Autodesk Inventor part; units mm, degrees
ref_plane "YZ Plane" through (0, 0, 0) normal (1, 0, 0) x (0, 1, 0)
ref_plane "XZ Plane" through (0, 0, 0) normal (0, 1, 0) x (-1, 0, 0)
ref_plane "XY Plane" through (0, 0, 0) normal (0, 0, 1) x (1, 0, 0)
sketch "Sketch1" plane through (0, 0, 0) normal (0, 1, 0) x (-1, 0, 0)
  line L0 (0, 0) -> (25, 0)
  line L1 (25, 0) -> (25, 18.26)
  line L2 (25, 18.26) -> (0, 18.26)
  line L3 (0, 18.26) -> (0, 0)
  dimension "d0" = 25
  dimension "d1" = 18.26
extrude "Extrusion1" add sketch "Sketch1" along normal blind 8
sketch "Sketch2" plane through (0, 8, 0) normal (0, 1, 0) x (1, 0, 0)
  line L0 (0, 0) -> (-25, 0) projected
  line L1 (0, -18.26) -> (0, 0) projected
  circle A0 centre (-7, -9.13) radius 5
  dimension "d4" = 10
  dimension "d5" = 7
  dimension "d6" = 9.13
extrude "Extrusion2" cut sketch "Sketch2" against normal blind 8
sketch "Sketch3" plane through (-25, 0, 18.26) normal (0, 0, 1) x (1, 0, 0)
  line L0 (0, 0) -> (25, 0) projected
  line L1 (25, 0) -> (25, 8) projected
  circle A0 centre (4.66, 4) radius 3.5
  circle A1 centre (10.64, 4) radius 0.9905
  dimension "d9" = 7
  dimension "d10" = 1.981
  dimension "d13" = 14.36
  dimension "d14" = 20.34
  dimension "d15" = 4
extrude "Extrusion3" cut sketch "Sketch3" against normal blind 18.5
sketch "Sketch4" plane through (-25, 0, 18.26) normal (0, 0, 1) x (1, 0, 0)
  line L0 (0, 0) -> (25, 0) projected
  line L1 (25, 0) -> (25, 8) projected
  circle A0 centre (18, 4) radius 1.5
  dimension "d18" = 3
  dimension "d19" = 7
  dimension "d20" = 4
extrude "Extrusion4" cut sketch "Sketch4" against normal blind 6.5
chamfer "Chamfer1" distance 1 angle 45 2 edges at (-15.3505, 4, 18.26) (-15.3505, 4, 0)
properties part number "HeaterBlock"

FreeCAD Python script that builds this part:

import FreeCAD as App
import Part
import Sketcher

V = App.Vector
Q = App.Units.Quantity


def edges_at(feature, points):
    """Names of the edges that pass closest to the given points."""
    edges = feature.Shape.Edges
    near = lambda p: min(range(len(edges)), key=lambda i: edges[i].distToShape(Part.Vertex(*p))[0])
    return sorted({f"Edge{near(p) + 1}" for p in points})


def add_polygon(sketch, points):
    """Adds a closed chain of lines whose ends are joined by coincident constraints."""
    first, n = sketch.GeometryCount, len(points)
    for a, b in zip(points, points[1:] + points[:1]):
        sketch.addGeometry(Part.LineSegment(App.Vector(*a, 0), App.Vector(*b, 0)), False)
    for i in range(n):
        sketch.addConstraint(Sketcher.Constraint("Coincident", first + i, 2, first + (i + 1) % n, 1))

doc = App.newDocument("Part")
body = doc.addObject("PartDesign::Body", "Body")

# Sketch on XZ plane
sketch1 = body.newObject("Sketcher::SketchObject", "Sketch")
sketch1.AttachmentSupport = (doc.getObject("XZ_Plane"), [""])
sketch1.MapMode = "FlatFace"
add_polygon(sketch1, [(0, 18), (0, 0), (-25, 0), (-25, 18)])  # lines 0-3
sketch1.addConstraint([
    Sketcher.Constraint("Vertical", 0),
    Sketcher.Constraint("Horizontal", 1),
    Sketcher.Constraint("Vertical", 2),
    Sketcher.Constraint("Horizontal", 3),
    Sketcher.Constraint("Coincident", 0, 2, -1, 1),
    Sketcher.Constraint("DistanceX", 1, 2, 1, 1, Q("25 mm")),
    Sketcher.Constraint("DistanceY", 0, 2, 0, 1, Q("18.26 mm")),
])
pad1 = body.newObject("PartDesign::Pad", "Pad")
pad1.Profile = sketch1
pad1.Length = 8
pad1.Reversed = True

# Sketch on XZ plane
sketch2 = body.newObject("Sketcher::SketchObject", "Sketch001")
sketch2.AttachmentSupport = (doc.getObject("XZ_Plane"), [""])
sketch2.MapMode = "FlatFace"
sketch2.AttachmentOffset = App.Placement(V(0, 0, -8), App.Rotation())
sketch2.addGeometry(Part.Circle(V(-7, 9, 0), V(0, 0, 1), 5), False)
sketch2.addConstraint([
    Sketcher.Constraint("Diameter", 0, Q("10 mm")),
    Sketcher.Constraint("DistanceX", 0, 3, -1, 1, Q("7 mm")),
    Sketcher.Constraint("DistanceY", -1, 1, 0, 3, Q("9.13 mm")),
])
pocket1 = body.newObject("PartDesign::Pocket", "Pocket")
pocket1.Profile = sketch2
pocket1.Length = 8
pocket1.Reversed = True

# Sketch on XY plane
sketch3 = body.newObject("Sketcher::SketchObject", "Sketch002")
sketch3.AttachmentSupport = (doc.getObject("XY_Plane"), [""])
sketch3.MapMode = "FlatFace"
sketch3.AttachmentOffset = App.Placement(V(0, 0, 18.26), App.Rotation())
sketch3.addGeometry([
    Part.Circle(V(-20.3, 4, 0), V(0, 0, 1), 3.5),
    Part.Circle(V(-14.4, 4, 0), V(0, 0, 1), 1),
], False)
sketch3.addConstraint([
    Sketcher.Constraint("Horizontal", 0, 3, 1, 3),
    Sketcher.Constraint("Diameter", 0, Q("7 mm")),
    Sketcher.Constraint("Diameter", 1, Q("1.981 mm")),
    Sketcher.Constraint("DistanceY", -1, 1, 0, 3, Q("4 mm")),
    Sketcher.Constraint("DistanceX", 0, 3, -1, 1, Q("20.34 mm")),
    Sketcher.Constraint("DistanceX", 1, 3, -1, 1, Q("14.36 mm")),
])
pocket2 = body.newObject("PartDesign::Pocket", "Pocket001")
pocket2.Profile = sketch3
pocket2.Length = 18.5

# Sketch on XY plane
sketch4 = body.newObject("Sketcher::SketchObject", "Sketch003")
sketch4.AttachmentSupport = (doc.getObject("XY_Plane"), [""])
sketch4.MapMode = "FlatFace"
sketch4.AttachmentOffset = App.Placement(V(0, 0, 18.26), App.Rotation())
sketch4.addGeometry(Part.Circle(V(-7, 4, 0), V(0, 0, 1), 1.5), False)
sketch4.addConstraint([
    Sketcher.Constraint("Diameter", 0, Q("3 mm")),
    Sketcher.Constraint("DistanceX", 0, 3, -1, 1, Q("7 mm")),
    Sketcher.Constraint("DistanceY", -1, 1, 0, 3, Q("4 mm")),
])
pocket3 = body.newObject("PartDesign::Pocket", "Pocket002")
pocket3.Profile = sketch4
pocket3.Length = 6.5
doc.recompute()

chamfer = body.newObject("PartDesign::Chamfer", "Chamfer")
chamfer.Base = (pocket3, edges_at(pocket3, [(-15.351, 4, 18.26), (-15.351, 4, 0)]))
chamfer.Size = 1

doc.recompute()
